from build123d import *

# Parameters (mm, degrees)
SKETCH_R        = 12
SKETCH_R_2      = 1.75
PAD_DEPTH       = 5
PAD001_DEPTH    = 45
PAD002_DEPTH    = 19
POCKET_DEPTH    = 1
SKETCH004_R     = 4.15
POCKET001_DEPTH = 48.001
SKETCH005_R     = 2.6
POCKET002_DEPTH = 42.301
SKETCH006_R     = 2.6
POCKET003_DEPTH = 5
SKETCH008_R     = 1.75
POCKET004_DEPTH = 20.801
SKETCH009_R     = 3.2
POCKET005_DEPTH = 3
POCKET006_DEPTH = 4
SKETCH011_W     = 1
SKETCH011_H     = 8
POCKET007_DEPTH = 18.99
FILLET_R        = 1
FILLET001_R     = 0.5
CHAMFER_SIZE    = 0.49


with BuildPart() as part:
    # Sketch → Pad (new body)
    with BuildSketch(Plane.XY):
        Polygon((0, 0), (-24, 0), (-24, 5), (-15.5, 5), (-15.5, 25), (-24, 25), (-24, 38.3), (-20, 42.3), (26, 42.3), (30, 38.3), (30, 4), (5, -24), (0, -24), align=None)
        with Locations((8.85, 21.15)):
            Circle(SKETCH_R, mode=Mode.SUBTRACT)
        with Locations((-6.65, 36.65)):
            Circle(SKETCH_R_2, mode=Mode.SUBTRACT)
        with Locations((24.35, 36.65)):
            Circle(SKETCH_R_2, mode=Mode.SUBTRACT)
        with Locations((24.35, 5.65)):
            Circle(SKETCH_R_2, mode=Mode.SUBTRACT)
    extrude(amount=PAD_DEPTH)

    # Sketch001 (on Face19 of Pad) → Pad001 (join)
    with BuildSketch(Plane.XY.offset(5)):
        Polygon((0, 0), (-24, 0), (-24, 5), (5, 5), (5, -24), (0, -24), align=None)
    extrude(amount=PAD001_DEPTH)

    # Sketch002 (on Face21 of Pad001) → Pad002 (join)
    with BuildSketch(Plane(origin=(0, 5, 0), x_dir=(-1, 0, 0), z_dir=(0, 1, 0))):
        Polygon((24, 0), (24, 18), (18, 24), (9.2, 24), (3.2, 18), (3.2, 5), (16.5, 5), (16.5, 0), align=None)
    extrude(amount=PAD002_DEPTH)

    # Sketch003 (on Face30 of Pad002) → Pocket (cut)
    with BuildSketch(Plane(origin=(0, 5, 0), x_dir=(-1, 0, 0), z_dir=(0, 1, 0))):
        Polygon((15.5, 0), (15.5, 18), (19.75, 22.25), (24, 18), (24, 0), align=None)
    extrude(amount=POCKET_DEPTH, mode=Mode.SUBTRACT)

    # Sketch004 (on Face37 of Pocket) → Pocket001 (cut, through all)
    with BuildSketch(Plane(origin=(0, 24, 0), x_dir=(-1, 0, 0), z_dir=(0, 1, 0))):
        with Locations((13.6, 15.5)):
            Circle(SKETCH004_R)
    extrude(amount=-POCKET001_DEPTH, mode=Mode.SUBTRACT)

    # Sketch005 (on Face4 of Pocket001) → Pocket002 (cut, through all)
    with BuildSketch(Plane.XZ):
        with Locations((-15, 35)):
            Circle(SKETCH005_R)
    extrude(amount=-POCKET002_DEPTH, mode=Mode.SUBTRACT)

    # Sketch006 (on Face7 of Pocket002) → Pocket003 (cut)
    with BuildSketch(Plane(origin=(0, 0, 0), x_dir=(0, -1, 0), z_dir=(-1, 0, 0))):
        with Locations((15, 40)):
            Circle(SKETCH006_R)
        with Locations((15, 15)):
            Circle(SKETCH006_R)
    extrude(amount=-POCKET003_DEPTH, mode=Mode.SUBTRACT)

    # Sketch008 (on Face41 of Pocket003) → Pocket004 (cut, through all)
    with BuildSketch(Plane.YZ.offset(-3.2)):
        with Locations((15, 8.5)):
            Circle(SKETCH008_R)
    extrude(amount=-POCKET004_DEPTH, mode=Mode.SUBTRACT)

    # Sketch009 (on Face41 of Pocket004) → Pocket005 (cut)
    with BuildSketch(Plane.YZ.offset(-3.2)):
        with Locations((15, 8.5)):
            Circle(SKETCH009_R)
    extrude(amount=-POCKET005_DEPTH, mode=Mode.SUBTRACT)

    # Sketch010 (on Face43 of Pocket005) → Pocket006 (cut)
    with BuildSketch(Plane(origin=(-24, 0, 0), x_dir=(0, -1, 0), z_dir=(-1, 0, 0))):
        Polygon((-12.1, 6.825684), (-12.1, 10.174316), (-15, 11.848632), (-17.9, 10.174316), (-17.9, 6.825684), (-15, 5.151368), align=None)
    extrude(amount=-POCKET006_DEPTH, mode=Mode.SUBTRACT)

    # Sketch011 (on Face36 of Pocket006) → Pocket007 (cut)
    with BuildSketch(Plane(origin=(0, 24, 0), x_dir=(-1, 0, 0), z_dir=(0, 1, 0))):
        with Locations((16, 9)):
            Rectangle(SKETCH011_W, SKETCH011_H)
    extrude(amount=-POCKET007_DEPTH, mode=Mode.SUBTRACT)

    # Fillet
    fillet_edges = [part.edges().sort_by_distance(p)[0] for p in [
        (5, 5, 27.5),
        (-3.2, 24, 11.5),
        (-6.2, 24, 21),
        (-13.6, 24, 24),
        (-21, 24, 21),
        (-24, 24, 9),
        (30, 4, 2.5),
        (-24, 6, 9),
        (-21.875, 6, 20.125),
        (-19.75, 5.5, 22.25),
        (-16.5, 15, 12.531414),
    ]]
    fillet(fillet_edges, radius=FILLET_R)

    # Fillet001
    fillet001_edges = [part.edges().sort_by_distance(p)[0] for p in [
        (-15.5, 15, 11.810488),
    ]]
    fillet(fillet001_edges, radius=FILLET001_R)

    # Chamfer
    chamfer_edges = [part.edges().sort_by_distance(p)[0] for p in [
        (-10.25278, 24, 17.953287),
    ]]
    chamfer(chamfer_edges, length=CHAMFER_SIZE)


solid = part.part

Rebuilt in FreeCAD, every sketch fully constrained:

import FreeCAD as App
import Part
import Sketcher
from FreeCAD import Vector
Q = App.Units.Quantity


def edges_at(feature, points):
    """Names of the edges that pass closest to the given points."""
    edges = feature.Shape.Edges
    near = lambda p: min(range(len(edges)), key=lambda i: edges[i].distToShape(Part.Vertex(*p))[0])
    return sorted({f"Edge{near(p) + 1}" for p in points})

doc = App.newDocument("Part")
params = doc.addObject("Spreadsheet::Sheet", "Params")
for row, (alias, value) in enumerate([
    ("sketch1_diameter", "24 mm"),
    ("sketch1_diameter2", "3.5 mm"),
    ("sketch1_width", "24 mm"),
    ("sketch1_width2", "5 mm"),
    ("sketch1_width3", "46 mm"),
    ("pad1_length", "5 mm"),
    ("sketch2_width", "24 mm"),
    ("sketch2_width2", "5 mm"),
    ("pad2_length", "45 mm"),
    ("sketch3_height", "18 mm"),
    ("sketch3_height2", "13 mm"),
    ("sketch3_width", "8.8 mm"),
    ("sketch3_width2", "13.3 mm"),
    ("sketch3_width3", "7.5 mm"),
    ("pad3_length", "19 mm"),
    ("sketch4_height", "18 mm"),
    ("sketch4_width", "8.5 mm"),
    ("pocket1_length", "1 mm"),
    ("sketch5_diameter", "8.3 mm"),
    ("sketch6_diameter", "5.2 mm"),
    ("sketch7_diameter", "5.2 mm"),
    ("pocket4_length", "5 mm"),
    ("sketch8_diameter", "3.5 mm"),
    ("sketch9_diameter", "6.4 mm"),
    ("pocket6_length", "3 mm"),
    ("pocket7_length", "4 mm"),
    ("sketch11_width", "1 mm"),
    ("sketch11_height", "8 mm"),
    ("pocket8_length", "18.99 mm"),
    ("fillet_radius", "1 mm"),
    ("fillet2_radius", "0.5 mm"),
    ("chamfer_size", "0.49 mm"),
], start=1):
    params.set(f"A{row}", alias)
    params.set(f"B{row}", "=" + value)
    params.setAlias(f"B{row}", alias)

body = doc.addObject("PartDesign::Body", "Body")

# Sketch on XY plane
sketch1 = body.newObject("Sketcher::SketchObject", "Sketch")
sketch1.AttachmentSupport = (doc.getObject("XY_Plane"), [""])
sketch1.MapMode = "FlatFace"
sketch1.addGeometry([
    Part.LineSegment(Vector(-24, 0, 0), Vector(0, 0, 0)),  # 0
    Part.LineSegment(Vector(0, 0, 0), Vector(0, -24, 0)),  # 1
    Part.LineSegment(Vector(0, -24, 0), Vector(5, -24, 0)),  # 2
    Part.LineSegment(Vector(5, -24, 0), Vector(30, 4, 0)),  # 3
    Part.LineSegment(Vector(30, 4, 0), Vector(30, 38.3, 0)),  # 4
    Part.LineSegment(Vector(30, 38.3, 0), Vector(26, 42.3, 0)),  # 5
    Part.LineSegment(Vector(26, 42.3, 0), Vector(-20, 42.3, 0)),  # 6
    Part.LineSegment(Vector(-20, 42.3, 0), Vector(-24, 38.3, 0)),  # 7
    Part.LineSegment(Vector(-24, 38.3, 0), Vector(-24, 25, 0)),  # 8
    Part.LineSegment(Vector(-24, 25, 0), Vector(-15.5, 25, 0)),  # 9
    Part.LineSegment(Vector(-15.5, 25, 0), Vector(-15.5, 5, 0)),  # 10
    Part.LineSegment(Vector(-15.5, 5, 0), Vector(-24, 5, 0)),  # 11
    Part.LineSegment(Vector(-24, 5, 0), Vector(-24, 0, 0)),  # 12
    Part.Circle(Vector(24.4, 5.7, 0), Vector(0, 0, 1), 1.8),  # 13
    Part.Circle(Vector(24.4, 36.6, 0), Vector(0, 0, 1), 1.8),  # 14
    Part.Circle(Vector(8.8, 21.1, 0), Vector(0, 0, 1), 12),  # 15
    Part.Circle(Vector(-6.7, 36.6, 0), Vector(0, 0, 1), 1.8),  # 16
], False)
sketch1.addConstraint([
    Sketcher.Constraint("Coincident", 0, 2, 1, 1),
    Sketcher.Constraint("Coincident", 1, 2, 2, 1),
    Sketcher.Constraint("Coincident", 2, 2, 3, 1),
    Sketcher.Constraint("Coincident", 3, 2, 4, 1),
    Sketcher.Constraint("Coincident", 4, 2, 5, 1),
    Sketcher.Constraint("Coincident", 5, 2, 6, 1),
    Sketcher.Constraint("Coincident", 6, 2, 7, 1),
    Sketcher.Constraint("Coincident", 7, 2, 8, 1),
    Sketcher.Constraint("Coincident", 8, 2, 9, 1),
    Sketcher.Constraint("Coincident", 9, 2, 10, 1),
    Sketcher.Constraint("Coincident", 10, 2, 11, 1),
    Sketcher.Constraint("Coincident", 11, 2, 12, 1),
    Sketcher.Constraint("Coincident", 12, 2, 0, 1),
    Sketcher.Constraint("Horizontal", 0),
    Sketcher.Constraint("Vertical", 1),
    Sketcher.Constraint("Horizontal", 2),
    Sketcher.Constraint("Vertical", 4),
    Sketcher.Constraint("Horizontal", 6),
    Sketcher.Constraint("Vertical", 8),
    Sketcher.Constraint("Horizontal", 9),
    Sketcher.Constraint("Vertical", 10),
    Sketcher.Constraint("Horizontal", 11),
    Sketcher.Constraint("Vertical", 12),
    Sketcher.Constraint("Coincident", 0, 2, -1, 1),
    Sketcher.Constraint("Equal", 13, 14),
    Sketcher.Constraint("Equal", 14, 16),
    Sketcher.Constraint("Perpendicular", 5, 7),
    Sketcher.Constraint("Horizontal", 14, 3, 16, 3),
    Sketcher.Constraint("Horizontal", 4, 2, 7, 2),
    Sketcher.Constraint("Vertical", 13, 3, 14, 3),
    Sketcher.Constraint("Vertical", 8, 2, 11, 2),
    Sketcher.Constraint("Equal", 0, 1),
    Sketcher.Constraint("Equal", 2, 12),
    Sketcher.Constraint("Equal", 5, 7),
    Sketcher.Constraint("Diameter", 15, Q("24 mm")),
    Sketcher.Constraint("Diameter", 13, Q("3.5 mm")),
    Sketcher.Constraint("DistanceX", 0, 1, 0, 2, Q("24 mm")),
    Sketcher.Constraint("DistanceX", 2, 1, 2, 2, Q("5 mm")),
    Sketcher.Constraint("DistanceX", 6, 2, 6, 1, Q("46 mm")),
    Sketcher.Constraint("DistanceY", 10, 2, 10, 1, Q("20 mm")),
    Sketcher.Constraint("DistanceX", 9, 1, 9, 2, Q("8.5 mm")),
    Sketcher.Constraint("DistanceY", 4, 1, 4, 2, Q("34.3 mm")),
    Sketcher.Constraint("DistanceY", 8, 2, 8, 1, Q("13.3 mm")),
    Sketcher.Constraint("DistanceX", -1, 1, 3, 2, Q("30 mm")),
    Sketcher.Constraint("DistanceY", 13, 3, 14, 3, Q("31 mm")),
    Sketcher.Constraint("DistanceX", 16, 3, 14, 3, Q("31 mm")),
    Sketcher.Constraint("DistanceX", 15, 3, 13, 3, Q("15.5 mm")),
    Sketcher.Constraint("DistanceY", 13, 3, 15, 3, Q("15.5 mm")),
    Sketcher.Constraint("DistanceX", -1, 1, 13, 3, Q("24.35 mm")),
    Sketcher.Constraint("DistanceY", -1, 1, 13, 3, Q("5.65 mm")),
])
sketch1.setExpression("Constraints[34]", "Params.sketch1_diameter")
sketch1.setExpression("Constraints[35]", "Params.sketch1_diameter2")
sketch1.setExpression("Constraints[36]", "Params.sketch1_width")
sketch1.setExpression("Constraints[37]", "Params.sketch1_width2")
sketch1.setExpression("Constraints[38]", "Params.sketch1_width3")
pad1 = body.newObject("PartDesign::Pad", "Pad")
pad1.Profile = sketch1
pad1.setExpression("Length", "Params.pad1_length")

# Sketch on XY plane
sketch2 = body.newObject("Sketcher::SketchObject", "Sketch001")
sketch2.AttachmentSupport = (doc.getObject("XY_Plane"), [""])
sketch2.MapMode = "FlatFace"
sketch2.AttachmentOffset = App.Placement(Vector(0, 0, 5), App.Rotation())
sketch2.addGeometry([
    Part.LineSegment(Vector(-24, 0, 0), Vector(0, 0, 0)),  # 0
    Part.LineSegment(Vector(0, 0, 0), Vector(0, -24, 0)),  # 1
    Part.LineSegment(Vector(0, -24, 0), Vector(5, -24, 0)),  # 2
    Part.LineSegment(Vector(5, -24, 0), Vector(5, 5, 0)),  # 3
    Part.LineSegment(Vector(5, 5, 0), Vector(-24, 5, 0)),  # 4
    Part.LineSegment(Vector(-24, 5, 0), Vector(-24, 0, 0)),  # 5
], False)
sketch2.addConstraint([
    Sketcher.Constraint("Coincident", 0, 2, 1, 1),
    Sketcher.Constraint("Coincident", 1, 2, 2, 1),
    Sketcher.Constraint("Coincident", 2, 2, 3, 1),
    Sketcher.Constraint("Coincident", 3, 2, 4, 1),
    Sketcher.Constraint("Coincident", 4, 2, 5, 1),
    Sketcher.Constraint("Coincident", 5, 2, 0, 1),
    Sketcher.Constraint("Horizontal", 0),
    Sketcher.Constraint("Vertical", 1),
    Sketcher.Constraint("Horizontal", 2),
    Sketcher.Constraint("Vertical", 3),
    Sketcher.Constraint("Horizontal", 4),
    Sketcher.Constraint("Vertical", 5),
    Sketcher.Constraint("Coincident", 0, 2, -1, 1),
    Sketcher.Constraint("Equal", 0, 1),
    Sketcher.Constraint("Equal", 4, 3),
    Sketcher.Constraint("DistanceX", 0, 1, 0, 2, Q("24 mm")),
    Sketcher.Constraint("DistanceX", 2, 1, 2, 2, Q("5 mm")),
])
sketch2.setExpression("Constraints[15]", "Params.sketch2_width")
sketch2.setExpression("Constraints[16]", "Params.sketch2_width2")
pad2 = body.newObject("PartDesign::Pad", "Pad001")
pad2.Profile = sketch2
pad2.setExpression("Length", "Params.pad2_length")

# Sketch on XZ plane
sketch3 = body.newObject("Sketcher::SketchObject", "Sketch002")
sketch3.AttachmentSupport = (doc.getObject("XZ_Plane"), [""])
sketch3.MapMode = "FlatFace"
sketch3.AttachmentOffset = App.Placement(Vector(0, 0, -5), App.Rotation())
sketch3.addGeometry([
    Part.LineSegment(Vector(-24, 0, 0), Vector(-24, 18, 0)),  # 0
    Part.LineSegment(Vector(-24, 18, 0), Vector(-18, 24, 0)),  # 1
    Part.LineSegment(Vector(-18, 24, 0), Vector(-9, 24, 0)),  # 2
    Part.LineSegment(Vector(-9, 24, 0), Vector(-3, 18, 0)),  # 3
    Part.LineSegment(Vector(-3, 18, 0), Vector(-3, 5, 0)),  # 4
    Part.LineSegment(Vector(-3, 5, 0), Vector(-16, 5, 0)),  # 5
    Part.LineSegment(Vector(-16, 5, 0), Vector(-16, 0, 0)),  # 6
    Part.LineSegment(Vector(-16, 0, 0), Vector(-24, 0, 0)),  # 7
], False)
sketch3.addConstraint([
    Sketcher.Constraint("Coincident", 0, 2, 1, 1),
    Sketcher.Constraint("Coincident", 1, 2, 2, 1),
    Sketcher.Constraint("Coincident", 2, 2, 3, 1),
    Sketcher.Constraint("Coincident", 3, 2, 4, 1),
    Sketcher.Constraint("Coincident", 4, 2, 5, 1),
    Sketcher.Constraint("Coincident", 5, 2, 6, 1),
    Sketcher.Constraint("Coincident", 6, 2, 7, 1),
    Sketcher.Constraint("Coincident", 7, 2, 0, 1),
    Sketcher.Constraint("Vertical", 0),
    Sketcher.Constraint("Horizontal", 2),
    Sketcher.Constraint("Vertical", 4),
    Sketcher.Constraint("Horizontal", 5),
    Sketcher.Constraint("Vertical", 6),
    Sketcher.Constraint("Horizontal", 7),
    Sketcher.Constraint("PointOnObject", 6, 2, -1),
    Sketcher.Constraint("Perpendicular", 1, 3),
    Sketcher.Constraint("Horizontal", 0, 2, 3, 2),
    Sketcher.Constraint("Equal", 1, 3),
    Sketcher.Constraint("DistanceY", 0, 1, 0, 2, Q("18 mm")),
    Sketcher.Constraint("DistanceY", 4, 2, 4, 1, Q("13 mm")),
    Sketcher.Constraint("DistanceX", 2, 1, 2, 2, Q("8.8 mm")),
    Sketcher.Constraint("DistanceX", 5, 2, 5, 1, Q("13.3 mm")),
    Sketcher.Constraint("DistanceX", 7, 2, 7, 1, Q("7.5 mm")),
    Sketcher.Constraint("DistanceX", 0, 2, -1, 1, Q("24 mm")),
])
sketch3.setExpression("Constraints[18]", "Params.sketch3_height")
sketch3.setExpression("Constraints[19]", "Params.sketch3_height2")
sketch3.setExpression("Constraints[20]", "Params.sketch3_width")
sketch3.setExpression("Constraints[21]", "Params.sketch3_width2")
sketch3.setExpression("Constraints[22]", "Params.sketch3_width3")
pad3 = body.newObject("PartDesign::Pad", "Pad002")
pad3.Profile = sketch3
pad3.setExpression("Length", "Params.pad3_length")
pad3.Reversed = True

# Sketch on XZ plane
sketch4 = body.newObject("Sketcher::SketchObject", "Sketch003")
sketch4.AttachmentSupport = (doc.getObject("XZ_Plane"), [""])
sketch4.MapMode = "FlatFace"
sketch4.AttachmentOffset = App.Placement(Vector(0, 0, -5), App.Rotation())
sketch4.addGeometry([
    Part.LineSegment(Vector(-16, 18, 0), Vector(-16, 0, 0)),  # 0
    Part.LineSegment(Vector(-16, 0, 0), Vector(-24, 0, 0)),  # 1
    Part.LineSegment(Vector(-24, 0, 0), Vector(-24, 18, 0)),  # 2
    Part.LineSegment(Vector(-24, 18, 0), Vector(-20, 22, 0)),  # 3
    Part.LineSegment(Vector(-20, 22, 0), Vector(-16, 18, 0)),  # 4
], False)
sketch4.addConstraint([
    Sketcher.Constraint("Coincident", 0, 2, 1, 1),
    Sketcher.Constraint("Coincident", 1, 2, 2, 1),
    Sketcher.Constraint("Coincident", 2, 2, 3, 1),
    Sketcher.Constraint("Coincident", 3, 2, 4, 1),
    Sketcher.Constraint("Coincident", 4, 2, 0, 1),
    Sketcher.Constraint("Vertical", 0),
    Sketcher.Constraint("Horizontal", 1),
    Sketcher.Constraint("Vertical", 2),
    Sketcher.Constraint("PointOnObject", 0, 2, -1),
    Sketcher.Constraint("Perpendicular", 3, 4),
    Sketcher.Constraint("Horizontal", 2, 2, 4, 2),
    Sketcher.Constraint("Equal", 3, 4),
    Sketcher.Constraint("DistanceY", 0, 2, 0, 1, Q("18 mm")),
    Sketcher.Constraint("DistanceX", 1, 2, 1, 1, Q("8.5 mm")),
    Sketcher.Constraint("DistanceX", 1, 2, -1, 1, Q("24 mm")),
])
sketch4.setExpression("Constraints[12]", "Params.sketch4_height")
sketch4.setExpression("Constraints[13]", "Params.sketch4_width")
pocket1 = body.newObject("PartDesign::Pocket", "Pocket")
pocket1.Profile = sketch4
pocket1.setExpression("Length", "Params.pocket1_length")

# Sketch on XZ plane
sketch5 = body.newObject("Sketcher::SketchObject", "Sketch004")
sketch5.AttachmentSupport = (doc.getObject("XZ_Plane"), [""])
sketch5.MapMode = "FlatFace"
sketch5.AttachmentOffset = App.Placement(Vector(0, 0, -24), App.Rotation())
sketch5.addGeometry(Part.Circle(Vector(-13.6, 15.5, 0), Vector(0, 0, 1), 4.2), False)
sketch5.addConstraint([
    Sketcher.Constraint("Diameter", 0, Q("8.3 mm")),
    Sketcher.Constraint("DistanceX", 0, 3, -1, 1, Q("13.6 mm")),
    Sketcher.Constraint("DistanceY", -1, 1, 0, 3, Q("15.5 mm")),
])
sketch5.setExpression("Constraints[0]", "Params.sketch5_diameter")
pocket2 = body.newObject("PartDesign::Pocket", "Pocket001")
pocket2.Profile = sketch5
pocket2.Type = "ThroughAll"
pocket2.Reversed = True

# Sketch on XZ plane
sketch6 = body.newObject("Sketcher::SketchObject", "Sketch005")
sketch6.AttachmentSupport = (doc.getObject("XZ_Plane"), [""])
sketch6.MapMode = "FlatFace"
sketch6.addGeometry(Part.Circle(Vector(-15, 35, 0), Vector(0, 0, 1), 2.6), False)
sketch6.addConstraint([
    Sketcher.Constraint("Diameter", 0, Q("5.2 mm")),
    Sketcher.Constraint("DistanceX", 0, 3, -1, 1, Q("15 mm")),
    Sketcher.Constraint("DistanceY", -1, 1, 0, 3, Q("35 mm")),
])
sketch6.setExpression("Constraints[0]", "Params.sketch6_diameter")
pocket3 = body.newObject("PartDesign::Pocket", "Pocket002")
pocket3.Profile = sketch6
pocket3.Type = "ThroughAll"

# Sketch on YZ plane
sketch7 = body.newObject("Sketcher::SketchObject", "Sketch006")
sketch7.AttachmentSupport = (doc.getObject("YZ_Plane"), [""])
sketch7.MapMode = "FlatFace"
sketch7.addGeometry([
    Part.Circle(Vector(-15, 40, 0), Vector(0, 0, 1), 2.6),
    Part.Circle(Vector(-15, 15, 0), Vector(0, 0, 1), 2.6),
], False)
sketch7.addConstraint([
    Sketcher.Constraint("Equal", 0, 1),
    Sketcher.Constraint("Vertical", 0, 3, 1, 3),
    Sketcher.Constraint("Diameter", 0, Q("5.2 mm")),
    Sketcher.Constraint("DistanceX", 0, 3, -1, 1, Q("15 mm")),
    Sketcher.Constraint("DistanceY", -1, 1, 0, 3, Q("40 mm")),
    Sketcher.Constraint("DistanceY", -1, 1, 1, 3, Q("15 mm")),
])
sketch7.setExpression("Constraints[2]", "Params.sketch7_diameter")
pocket4 = body.newObject("PartDesign::Pocket", "Pocket003")
pocket4.Profile = sketch7
pocket4.setExpression("Length", "Params.pocket4_length")
pocket4.Reversed = True

# Sketch on YZ plane
sketch8 = body.newObject("Sketcher::SketchObject", "Sketch007")
sketch8.AttachmentSupport = (doc.getObject("YZ_Plane"), [""])
sketch8.MapMode = "FlatFace"
sketch8.AttachmentOffset = App.Placement(Vector(0, 0, -3.2), App.Rotation())
sketch8.addGeometry(Part.Circle(Vector(15, 8.5, 0), Vector(0, 0, 1), 1.8), False)
sketch8.addConstraint([
    Sketcher.Constraint("Diameter", 0, Q("3.5 mm")),
    Sketcher.Constraint("DistanceX", -1, 1, 0, 3, Q("15 mm")),
    Sketcher.Constraint("DistanceY", -1, 1, 0, 3, Q("8.5 mm")),
])
sketch8.setExpression("Constraints[0]", "Params.sketch8_diameter")
pocket5 = body.newObject("PartDesign::Pocket", "Pocket004")
pocket5.Profile = sketch8
pocket5.Type = "ThroughAll"

# Sketch on YZ plane
sketch9 = body.newObject("Sketcher::SketchObject", "Sketch008")
sketch9.AttachmentSupport = (doc.getObject("YZ_Plane"), [""])
sketch9.MapMode = "FlatFace"
sketch9.AttachmentOffset = App.Placement(Vector(0, 0, -3.2), App.Rotation())
sketch9.addGeometry(Part.Circle(Vector(15, 8.5, 0), Vector(0, 0, 1), 3.2), False)
sketch9.addConstraint([
    Sketcher.Constraint("Diameter", 0, Q("6.4 mm")),
    Sketcher.Constraint("DistanceX", -1, 1, 0, 3, Q("15 mm")),
    Sketcher.Constraint("DistanceY", -1, 1, 0, 3, Q("8.5 mm")),
])
sketch9.setExpression("Constraints[0]", "Params.sketch9_diameter")
pocket6 = body.newObject("PartDesign::Pocket", "Pocket005")
pocket6.Profile = sketch9
pocket6.setExpression("Length", "Params.pocket6_length")

# Sketch on YZ plane
sketch10 = body.newObject("Sketcher::SketchObject", "Sketch009")
sketch10.AttachmentSupport = (doc.getObject("YZ_Plane"), [""])
sketch10.MapMode = "FlatFace"
sketch10.AttachmentOffset = App.Placement(Vector(0, 0, -24), App.Rotation())
sketch10.addGeometry([
    Part.LineSegment(Vector(12.1, 6.8, 0), Vector(12.1, 10.2, 0)),  # 0
    Part.LineSegment(Vector(12.1, 10.2, 0), Vector(15, 11.8, 0)),  # 1
    Part.LineSegment(Vector(15, 11.8, 0), Vector(17.9, 10.2, 0)),  # 2
    Part.LineSegment(Vector(17.9, 10.2, 0), Vector(17.9, 6.8, 0)),  # 3
    Part.LineSegment(Vector(17.9, 6.8, 0), Vector(15, 5.2, 0)),  # 4
    Part.LineSegment(Vector(15, 5.2, 0), Vector(12.1, 6.8, 0)),  # 5
], False)
sketch10.addConstraint([
    Sketcher.Constraint("Coincident", 0, 2, 1, 1),
    Sketcher.Constraint("Coincident", 1, 2, 2, 1),
    Sketcher.Constraint("Coincident", 2, 2, 3, 1),
    Sketcher.Constraint("Coincident", 3, 2, 4, 1),
    Sketcher.Constraint("Coincident", 4, 2, 5, 1),
    Sketcher.Constraint("Coincident", 5, 2, 0, 1),
    Sketcher.Constraint("Vertical", 0),
    Sketcher.Constraint("Vertical", 3),
    Sketcher.Constraint("Parallel", 1, 4),
    Sketcher.Constraint("Parallel", 2, 5),
    Sketcher.Constraint("Horizontal", 0, 2, 2, 2),
    Sketcher.Constraint("Horizontal", 3, 2, 5, 2),
    Sketcher.Constraint("Vertical", 1, 2, 4, 2),
    Sketcher.Constraint("Angle", 1, Q("30.000003 deg")),
    Sketcher.Constraint("DistanceX", -1, 1, 1, 2, Q("15 mm")),
    Sketcher.Constraint("DistanceX", -1, 1, 0, 2, Q("12.1 mm")),
    Sketcher.Constraint("DistanceY", 0, 1, 0, 2, Q("3.348632 mm")),
    Sketcher.Constraint("DistanceY", -1, 1, 0, 2, Q("10.174316 mm")),
])
pocket7 = body.newObject("PartDesign::Pocket", "Pocket006")
pocket7.Profile = sketch10
pocket7.setExpression("Length", "Params.pocket7_length")
pocket7.Reversed = True

# Sketch on XZ plane
sketch11 = body.newObject("Sketcher::SketchObject", "Sketch010")
sketch11.AttachmentSupport = (doc.getObject("XZ_Plane"), [""])
sketch11.MapMode = "FlatFace"
sketch11.AttachmentOffset = App.Placement(Vector(0, 0, -24), App.Rotation())
sketch11.addGeometry([
    Part.LineSegment(Vector(-15.5, 13, 0), Vector(-15.5, 5, 0)),
    Part.LineSegment(Vector(-15.5, 5, 0), Vector(-16.5, 5, 0)),
    Part.LineSegment(Vector(-16.5, 5, 0), Vector(-16.5, 13, 0)),
    Part.LineSegment(Vector(-16.5, 13, 0), Vector(-15.5, 13, 0)),
], False)
sketch11.addConstraint([
    Sketcher.Constraint("Coincident", 0, 2, 1, 1),
    Sketcher.Constraint("Coincident", 1, 2, 2, 1),
    Sketcher.Constraint("Coincident", 2, 2, 3, 1),
    Sketcher.Constraint("Coincident", 3, 2, 0, 1),
    Sketcher.Constraint("Vertical", 0),
    Sketcher.Constraint("Horizontal", 1),
    Sketcher.Constraint("Vertical", 2),
    Sketcher.Constraint("Horizontal", 3),
    Sketcher.Constraint("DistanceX", 1, 2, 1, 1, Q("1 mm")),
    Sketcher.Constraint("DistanceY", 0, 2, 0, 1, Q("8 mm")),
    Sketcher.Constraint("DistanceY", -1, 1, 0, 2, Q("5 mm")),
    Sketcher.Constraint("DistanceX", 0, 2, -1, 1, Q("15.5 mm")),
])
sketch11.setExpression("Constraints[8]", "Params.sketch11_width")
sketch11.setExpression("Constraints[9]", "Params.sketch11_height")
pocket8 = body.newObject("PartDesign::Pocket", "Pocket007")
pocket8.Profile = sketch11
pocket8.setExpression("Length", "Params.pocket8_length")
pocket8.Reversed = True
doc.recompute()

fillet = body.newObject("PartDesign::Fillet", "Fillet")
fillet.Base = (pocket8, edges_at(pocket8, [
    (5, 5, 27.5),
    (-3.2, 24, 11.5),
    (-6.2, 24, 21),
    (-13.6, 24, 24),
    (-21, 24, 21),
    (-24, 24, 9),
    (30, 4, 2.5),
    (-24, 6, 9),
    (-21.875, 6, 20.125),
    (-19.75, 5.5, 22.25),
    (-16.5, 15, 12.531),
]))
fillet.setExpression("Radius", "Params.fillet_radius")
doc.recompute()

fillet2 = body.newObject("PartDesign::Fillet", "Fillet001")
fillet2.Base = (fillet, edges_at(fillet, [(-15.5, 14.5, 11.81)]))
fillet2.setExpression("Radius", "Params.fillet2_radius")
doc.recompute()

chamfer = body.newObject("PartDesign::Chamfer", "Chamfer")
chamfer.Base = (fillet2, edges_at(fillet2, [(-10.253, 24, 17.953)]))
chamfer.setExpression("Size", "Params.chamfer_size")

doc.recompute()
